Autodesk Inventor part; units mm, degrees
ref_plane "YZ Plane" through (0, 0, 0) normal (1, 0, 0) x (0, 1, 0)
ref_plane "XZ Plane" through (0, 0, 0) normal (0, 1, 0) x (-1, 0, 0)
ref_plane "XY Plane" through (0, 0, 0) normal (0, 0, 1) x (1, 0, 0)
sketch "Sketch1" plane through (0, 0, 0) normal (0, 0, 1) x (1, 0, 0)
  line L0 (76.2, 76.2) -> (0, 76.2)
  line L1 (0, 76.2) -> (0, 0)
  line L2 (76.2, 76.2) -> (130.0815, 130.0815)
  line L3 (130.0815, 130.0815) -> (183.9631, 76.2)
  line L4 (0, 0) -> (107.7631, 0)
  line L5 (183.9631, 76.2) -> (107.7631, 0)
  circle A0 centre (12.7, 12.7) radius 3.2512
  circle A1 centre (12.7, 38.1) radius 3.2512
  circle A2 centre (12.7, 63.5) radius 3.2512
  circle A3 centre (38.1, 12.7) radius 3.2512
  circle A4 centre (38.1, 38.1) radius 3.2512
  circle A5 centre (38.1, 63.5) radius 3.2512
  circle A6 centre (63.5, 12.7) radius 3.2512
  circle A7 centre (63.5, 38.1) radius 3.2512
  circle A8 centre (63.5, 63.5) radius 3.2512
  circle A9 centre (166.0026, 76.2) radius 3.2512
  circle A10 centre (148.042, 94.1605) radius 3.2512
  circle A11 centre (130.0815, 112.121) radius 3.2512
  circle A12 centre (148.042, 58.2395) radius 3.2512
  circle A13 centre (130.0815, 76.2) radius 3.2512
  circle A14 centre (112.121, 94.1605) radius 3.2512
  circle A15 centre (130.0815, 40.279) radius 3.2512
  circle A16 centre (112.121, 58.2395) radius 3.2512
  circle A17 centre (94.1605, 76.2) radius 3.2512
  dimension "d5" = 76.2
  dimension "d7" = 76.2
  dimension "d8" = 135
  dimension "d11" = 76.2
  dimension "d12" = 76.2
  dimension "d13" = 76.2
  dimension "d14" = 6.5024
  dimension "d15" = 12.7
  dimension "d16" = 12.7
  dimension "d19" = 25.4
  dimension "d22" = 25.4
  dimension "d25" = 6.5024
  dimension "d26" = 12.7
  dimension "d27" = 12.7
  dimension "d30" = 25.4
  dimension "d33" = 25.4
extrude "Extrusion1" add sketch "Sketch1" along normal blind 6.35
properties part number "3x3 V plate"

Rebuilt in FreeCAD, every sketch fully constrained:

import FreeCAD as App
import Part
import Sketcher

V = App.Vector
Q = App.Units.Quantity


def add_polygon(sketch, points):
    """Adds a closed chain of lines whose ends are joined by coincident constraints."""
    first, n = sketch.GeometryCount, len(points)
    for a, b in zip(points, points[1:] + points[:1]):
        sketch.addGeometry(Part.LineSegment(App.Vector(*a, 0), App.Vector(*b, 0)), False)
    for i in range(n):
        sketch.addConstraint(Sketcher.Constraint("Coincident", first + i, 2, first + (i + 1) % n, 1))

doc = App.newDocument("Part")
body = doc.addObject("PartDesign::Body", "Body")

# Sketch on XY plane
sketch1 = doc.addObject("Sketcher::SketchObject", "Sketch")
body.addObject(sketch1)
sketch1.AttachmentSupport = (doc.XY_Plane, [""])
sketch1.MapMode = "FlatFace"
add_polygon(sketch1, [(130.0815, 130.0815), (76.2, 76.2), (0, 76.2), (0, 0), (107.7631, 0), (183.9631, 76.2)])  # lines 0-5
sketch1.addGeometry(Part.Circle(V(12.7, 12.7, 0), V(0, 0, 1), 3.2512), False)  # 6
sketch1.addGeometry(Part.Circle(V(38.1, 12.7, 0), V(0, 0, 1), 3.2512), False)  # 7
sketch1.addGeometry(Part.Circle(V(63.5, 12.7, 0), V(0, 0, 1), 3.2512), False)  # 8
sketch1.addGeometry(Part.Circle(V(12.7, 38.1, 0), V(0, 0, 1), 3.2512), False)  # 9
sketch1.addGeometry(Part.Circle(V(38.1, 38.1, 0), V(0, 0, 1), 3.2512), False)  # 10
sketch1.addGeometry(Part.Circle(V(12.7, 63.5, 0), V(0, 0, 1), 3.2512), False)  # 11
sketch1.addGeometry(Part.Circle(V(38.1, 63.5, 0), V(0, 0, 1), 3.2512), False)  # 12
sketch1.addGeometry(Part.Circle(V(63.5, 38.1, 0), V(0, 0, 1), 3.2512), False)  # 13
sketch1.addGeometry(Part.Circle(V(63.5, 63.5, 0), V(0, 0, 1), 3.2512), False)  # 14
sketch1.addGeometry(Part.Circle(V(130.0815, 40.279, 0), V(0, 0, 1), 3.2512), False)  # 15
sketch1.addGeometry(Part.Circle(V(112.121, 58.2395, 0), V(0, 0, 1), 3.2512), False)  # 16
sketch1.addGeometry(Part.Circle(V(148.042, 58.2395, 0), V(0, 0, 1), 3.2512), False)  # 17
sketch1.addGeometry(Part.Circle(V(94.1605, 76.2, 0), V(0, 0, 1), 3.2512), False)  # 18
sketch1.addGeometry(Part.Circle(V(130.0815, 76.2, 0), V(0, 0, 1), 3.2512), False)  # 19
sketch1.addGeometry(Part.Circle(V(112.121, 94.1605, 0), V(0, 0, 1), 3.2512), False)  # 20
sketch1.addGeometry(Part.Circle(V(166.0026, 76.2, 0), V(0, 0, 1), 3.2512), False)  # 21
sketch1.addGeometry(Part.Circle(V(148.042, 94.1605, 0), V(0, 0, 1), 3.2512), False)  # 22
sketch1.addGeometry(Part.Circle(V(130.0815, 112.121, 0), V(0, 0, 1), 3.2512), False)  # 23
sketch1.addConstraint(Sketcher.Constraint("Horizontal", 1))
sketch1.addConstraint(Sketcher.Constraint("Vertical", 2))
sketch1.addConstraint(Sketcher.Constraint("Horizontal", 3))
sketch1.addConstraint(Sketcher.Constraint("Coincident", 2, 2, -1, 1))
sketch1.addConstraint(Sketcher.Constraint("Equal", 6, 7))
sketch1.addConstraint(Sketcher.Constraint("Equal", 7, 8))
sketch1.addConstraint(Sketcher.Constraint("Equal", 8, 9))
sketch1.addConstraint(Sketcher.Constraint("Equal", 9, 10))
sketch1.addConstraint(Sketcher.Constraint("Equal", 10, 11))
sketch1.addConstraint(Sketcher.Constraint("Equal", 11, 12))
sketch1.addConstraint(Sketcher.Constraint("Equal", 12, 13))
sketch1.addConstraint(Sketcher.Constraint("Equal", 13, 14))
sketch1.addConstraint(Sketcher.Constraint("Equal", 14, 15))
sketch1.addConstraint(Sketcher.Constraint("Equal", 15, 16))
sketch1.addConstraint(Sketcher.Constraint("Equal", 16, 17))
sketch1.addConstraint(Sketcher.Constraint("Equal", 17, 18))
sketch1.addConstraint(Sketcher.Constraint("Equal", 18, 19))
sketch1.addConstraint(Sketcher.Constraint("Equal", 19, 20))
sketch1.addConstraint(Sketcher.Constraint("Equal", 20, 21))
sketch1.addConstraint(Sketcher.Constraint("Equal", 21, 22))
sketch1.addConstraint(Sketcher.Constraint("Equal", 22, 23))
sketch1.addConstraint(Sketcher.Constraint("Parallel", 0, 4))
sketch1.addConstraint(Sketcher.Constraint("Perpendicular", 4, 5))
sketch1.addConstraint(Sketcher.Constraint("Horizontal", 6, 3, 7, 3))
sketch1.addConstraint(Sketcher.Constraint("Horizontal", 7, 3, 8, 3))
sketch1.addConstraint(Sketcher.Constraint("Horizontal", 9, 3, 10, 3))
sketch1.addConstraint(Sketcher.Constraint("Horizontal", 11, 3, 12, 3))
sketch1.addConstraint(Sketcher.Constraint("Horizontal", 10, 3, 13, 3))
sketch1.addConstraint(Sketcher.Constraint("Horizontal", 12, 3, 14, 3))
sketch1.addConstraint(Sketcher.Constraint("Horizontal", 16, 3, 17, 3))
sketch1.addConstraint(Sketcher.Constraint("Horizontal", 18, 3, 19, 3))
sketch1.addConstraint(Sketcher.Constraint("Horizontal", 19, 3, 21, 3))
sketch1.addConstraint(Sketcher.Constraint("Horizontal", 20, 3, 22, 3))
sketch1.addConstraint(Sketcher.Constraint("Horizontal", 21, 3, 0, 2))
sketch1.addConstraint(Sketcher.Constraint("Horizontal", 1, 2, 4, 2))
sketch1.addConstraint(Sketcher.Constraint("Vertical", 6, 3, 9, 3))
sketch1.addConstraint(Sketcher.Constraint("Vertical", 7, 3, 10, 3))
sketch1.addConstraint(Sketcher.Constraint("Vertical", 9, 3, 11, 3))
sketch1.addConstraint(Sketcher.Constraint("Vertical", 10, 3, 12, 3))
sketch1.addConstraint(Sketcher.Constraint("Vertical", 8, 3, 13, 3))
sketch1.addConstraint(Sketcher.Constraint("Vertical", 13, 3, 14, 3))
sketch1.addConstraint(Sketcher.Constraint("Vertical", 15, 3, 19, 3))
sketch1.addConstraint(Sketcher.Constraint("Vertical", 16, 3, 20, 3))
sketch1.addConstraint(Sketcher.Constraint("Vertical", 17, 3, 22, 3))
sketch1.addConstraint(Sketcher.Constraint("Vertical", 19, 3, 23, 3))
sketch1.addConstraint(Sketcher.Constraint("Vertical", 23, 3, 5, 2))
sketch1.addConstraint(Sketcher.Constraint("Equal", 1, 2))
sketch1.addConstraint(Sketcher.Constraint("Equal", 0, 5))
sketch1.addConstraint(Sketcher.Constraint("DistanceX", 1, 2, 1, 1, Q("3 in")))
sketch1.addConstraint(Sketcher.Constraint("Distance", 0, Q("3 in")))
sketch1.addConstraint(Sketcher.Constraint("Diameter", 6, Q("0.256 in")))
sketch1.addConstraint(Sketcher.Constraint("DistanceX", 6, 3, 7, 3, Q("1 in")))
sketch1.addConstraint(Sketcher.Constraint("DistanceX", 7, 3, 8, 3, Q("1 in")))
sketch1.addConstraint(Sketcher.Constraint("DistanceY", 6, 3, 9, 3, Q("1 in")))
sketch1.addConstraint(Sketcher.Constraint("DistanceY", 9, 3, 11, 3, Q("1 in")))
sketch1.addConstraint(Sketcher.Constraint("DistanceX", -1, 1, 6, 3, Q("0.5 in")))
sketch1.addConstraint(Sketcher.Constraint("DistanceY", -1, 1, 6, 3, Q("0.5 in")))
sketch1.addConstraint(Sketcher.Constraint("DistanceY", -1, 1, 16, 3, Q("2.2929 in")))
sketch1.addConstraint(Sketcher.Constraint("DistanceX", -1, 1, 18, 3, Q("3.7071 in")))
sketch1.addConstraint(Sketcher.Constraint("DistanceY", -1, 1, 20, 3, Q("3.7071 in")))
sketch1.addConstraint(Sketcher.Constraint("DistanceX", 16, 3, 15, 3, Q("0.7071 in")))
sketch1.addConstraint(Sketcher.Constraint("DistanceY", 15, 3, 16, 3, Q("0.7071 in")))
sketch1.addConstraint(Sketcher.Constraint("DistanceX", 15, 3, 17, 3, Q("0.7071 in")))
sketch1.addConstraint(Sketcher.Constraint("DistanceX", 17, 3, 21, 3, Q("0.7071 in")))
sketch1.addConstraint(Sketcher.Constraint("DistanceY", 22, 3, 23, 3, Q("0.7071 in")))
pad1 = doc.addObject("PartDesign::Pad", "Pad")
body.addObject(pad1)
pad1.Profile = sketch1
pad1.Length = Q("0.25 in")

doc.recompute()
